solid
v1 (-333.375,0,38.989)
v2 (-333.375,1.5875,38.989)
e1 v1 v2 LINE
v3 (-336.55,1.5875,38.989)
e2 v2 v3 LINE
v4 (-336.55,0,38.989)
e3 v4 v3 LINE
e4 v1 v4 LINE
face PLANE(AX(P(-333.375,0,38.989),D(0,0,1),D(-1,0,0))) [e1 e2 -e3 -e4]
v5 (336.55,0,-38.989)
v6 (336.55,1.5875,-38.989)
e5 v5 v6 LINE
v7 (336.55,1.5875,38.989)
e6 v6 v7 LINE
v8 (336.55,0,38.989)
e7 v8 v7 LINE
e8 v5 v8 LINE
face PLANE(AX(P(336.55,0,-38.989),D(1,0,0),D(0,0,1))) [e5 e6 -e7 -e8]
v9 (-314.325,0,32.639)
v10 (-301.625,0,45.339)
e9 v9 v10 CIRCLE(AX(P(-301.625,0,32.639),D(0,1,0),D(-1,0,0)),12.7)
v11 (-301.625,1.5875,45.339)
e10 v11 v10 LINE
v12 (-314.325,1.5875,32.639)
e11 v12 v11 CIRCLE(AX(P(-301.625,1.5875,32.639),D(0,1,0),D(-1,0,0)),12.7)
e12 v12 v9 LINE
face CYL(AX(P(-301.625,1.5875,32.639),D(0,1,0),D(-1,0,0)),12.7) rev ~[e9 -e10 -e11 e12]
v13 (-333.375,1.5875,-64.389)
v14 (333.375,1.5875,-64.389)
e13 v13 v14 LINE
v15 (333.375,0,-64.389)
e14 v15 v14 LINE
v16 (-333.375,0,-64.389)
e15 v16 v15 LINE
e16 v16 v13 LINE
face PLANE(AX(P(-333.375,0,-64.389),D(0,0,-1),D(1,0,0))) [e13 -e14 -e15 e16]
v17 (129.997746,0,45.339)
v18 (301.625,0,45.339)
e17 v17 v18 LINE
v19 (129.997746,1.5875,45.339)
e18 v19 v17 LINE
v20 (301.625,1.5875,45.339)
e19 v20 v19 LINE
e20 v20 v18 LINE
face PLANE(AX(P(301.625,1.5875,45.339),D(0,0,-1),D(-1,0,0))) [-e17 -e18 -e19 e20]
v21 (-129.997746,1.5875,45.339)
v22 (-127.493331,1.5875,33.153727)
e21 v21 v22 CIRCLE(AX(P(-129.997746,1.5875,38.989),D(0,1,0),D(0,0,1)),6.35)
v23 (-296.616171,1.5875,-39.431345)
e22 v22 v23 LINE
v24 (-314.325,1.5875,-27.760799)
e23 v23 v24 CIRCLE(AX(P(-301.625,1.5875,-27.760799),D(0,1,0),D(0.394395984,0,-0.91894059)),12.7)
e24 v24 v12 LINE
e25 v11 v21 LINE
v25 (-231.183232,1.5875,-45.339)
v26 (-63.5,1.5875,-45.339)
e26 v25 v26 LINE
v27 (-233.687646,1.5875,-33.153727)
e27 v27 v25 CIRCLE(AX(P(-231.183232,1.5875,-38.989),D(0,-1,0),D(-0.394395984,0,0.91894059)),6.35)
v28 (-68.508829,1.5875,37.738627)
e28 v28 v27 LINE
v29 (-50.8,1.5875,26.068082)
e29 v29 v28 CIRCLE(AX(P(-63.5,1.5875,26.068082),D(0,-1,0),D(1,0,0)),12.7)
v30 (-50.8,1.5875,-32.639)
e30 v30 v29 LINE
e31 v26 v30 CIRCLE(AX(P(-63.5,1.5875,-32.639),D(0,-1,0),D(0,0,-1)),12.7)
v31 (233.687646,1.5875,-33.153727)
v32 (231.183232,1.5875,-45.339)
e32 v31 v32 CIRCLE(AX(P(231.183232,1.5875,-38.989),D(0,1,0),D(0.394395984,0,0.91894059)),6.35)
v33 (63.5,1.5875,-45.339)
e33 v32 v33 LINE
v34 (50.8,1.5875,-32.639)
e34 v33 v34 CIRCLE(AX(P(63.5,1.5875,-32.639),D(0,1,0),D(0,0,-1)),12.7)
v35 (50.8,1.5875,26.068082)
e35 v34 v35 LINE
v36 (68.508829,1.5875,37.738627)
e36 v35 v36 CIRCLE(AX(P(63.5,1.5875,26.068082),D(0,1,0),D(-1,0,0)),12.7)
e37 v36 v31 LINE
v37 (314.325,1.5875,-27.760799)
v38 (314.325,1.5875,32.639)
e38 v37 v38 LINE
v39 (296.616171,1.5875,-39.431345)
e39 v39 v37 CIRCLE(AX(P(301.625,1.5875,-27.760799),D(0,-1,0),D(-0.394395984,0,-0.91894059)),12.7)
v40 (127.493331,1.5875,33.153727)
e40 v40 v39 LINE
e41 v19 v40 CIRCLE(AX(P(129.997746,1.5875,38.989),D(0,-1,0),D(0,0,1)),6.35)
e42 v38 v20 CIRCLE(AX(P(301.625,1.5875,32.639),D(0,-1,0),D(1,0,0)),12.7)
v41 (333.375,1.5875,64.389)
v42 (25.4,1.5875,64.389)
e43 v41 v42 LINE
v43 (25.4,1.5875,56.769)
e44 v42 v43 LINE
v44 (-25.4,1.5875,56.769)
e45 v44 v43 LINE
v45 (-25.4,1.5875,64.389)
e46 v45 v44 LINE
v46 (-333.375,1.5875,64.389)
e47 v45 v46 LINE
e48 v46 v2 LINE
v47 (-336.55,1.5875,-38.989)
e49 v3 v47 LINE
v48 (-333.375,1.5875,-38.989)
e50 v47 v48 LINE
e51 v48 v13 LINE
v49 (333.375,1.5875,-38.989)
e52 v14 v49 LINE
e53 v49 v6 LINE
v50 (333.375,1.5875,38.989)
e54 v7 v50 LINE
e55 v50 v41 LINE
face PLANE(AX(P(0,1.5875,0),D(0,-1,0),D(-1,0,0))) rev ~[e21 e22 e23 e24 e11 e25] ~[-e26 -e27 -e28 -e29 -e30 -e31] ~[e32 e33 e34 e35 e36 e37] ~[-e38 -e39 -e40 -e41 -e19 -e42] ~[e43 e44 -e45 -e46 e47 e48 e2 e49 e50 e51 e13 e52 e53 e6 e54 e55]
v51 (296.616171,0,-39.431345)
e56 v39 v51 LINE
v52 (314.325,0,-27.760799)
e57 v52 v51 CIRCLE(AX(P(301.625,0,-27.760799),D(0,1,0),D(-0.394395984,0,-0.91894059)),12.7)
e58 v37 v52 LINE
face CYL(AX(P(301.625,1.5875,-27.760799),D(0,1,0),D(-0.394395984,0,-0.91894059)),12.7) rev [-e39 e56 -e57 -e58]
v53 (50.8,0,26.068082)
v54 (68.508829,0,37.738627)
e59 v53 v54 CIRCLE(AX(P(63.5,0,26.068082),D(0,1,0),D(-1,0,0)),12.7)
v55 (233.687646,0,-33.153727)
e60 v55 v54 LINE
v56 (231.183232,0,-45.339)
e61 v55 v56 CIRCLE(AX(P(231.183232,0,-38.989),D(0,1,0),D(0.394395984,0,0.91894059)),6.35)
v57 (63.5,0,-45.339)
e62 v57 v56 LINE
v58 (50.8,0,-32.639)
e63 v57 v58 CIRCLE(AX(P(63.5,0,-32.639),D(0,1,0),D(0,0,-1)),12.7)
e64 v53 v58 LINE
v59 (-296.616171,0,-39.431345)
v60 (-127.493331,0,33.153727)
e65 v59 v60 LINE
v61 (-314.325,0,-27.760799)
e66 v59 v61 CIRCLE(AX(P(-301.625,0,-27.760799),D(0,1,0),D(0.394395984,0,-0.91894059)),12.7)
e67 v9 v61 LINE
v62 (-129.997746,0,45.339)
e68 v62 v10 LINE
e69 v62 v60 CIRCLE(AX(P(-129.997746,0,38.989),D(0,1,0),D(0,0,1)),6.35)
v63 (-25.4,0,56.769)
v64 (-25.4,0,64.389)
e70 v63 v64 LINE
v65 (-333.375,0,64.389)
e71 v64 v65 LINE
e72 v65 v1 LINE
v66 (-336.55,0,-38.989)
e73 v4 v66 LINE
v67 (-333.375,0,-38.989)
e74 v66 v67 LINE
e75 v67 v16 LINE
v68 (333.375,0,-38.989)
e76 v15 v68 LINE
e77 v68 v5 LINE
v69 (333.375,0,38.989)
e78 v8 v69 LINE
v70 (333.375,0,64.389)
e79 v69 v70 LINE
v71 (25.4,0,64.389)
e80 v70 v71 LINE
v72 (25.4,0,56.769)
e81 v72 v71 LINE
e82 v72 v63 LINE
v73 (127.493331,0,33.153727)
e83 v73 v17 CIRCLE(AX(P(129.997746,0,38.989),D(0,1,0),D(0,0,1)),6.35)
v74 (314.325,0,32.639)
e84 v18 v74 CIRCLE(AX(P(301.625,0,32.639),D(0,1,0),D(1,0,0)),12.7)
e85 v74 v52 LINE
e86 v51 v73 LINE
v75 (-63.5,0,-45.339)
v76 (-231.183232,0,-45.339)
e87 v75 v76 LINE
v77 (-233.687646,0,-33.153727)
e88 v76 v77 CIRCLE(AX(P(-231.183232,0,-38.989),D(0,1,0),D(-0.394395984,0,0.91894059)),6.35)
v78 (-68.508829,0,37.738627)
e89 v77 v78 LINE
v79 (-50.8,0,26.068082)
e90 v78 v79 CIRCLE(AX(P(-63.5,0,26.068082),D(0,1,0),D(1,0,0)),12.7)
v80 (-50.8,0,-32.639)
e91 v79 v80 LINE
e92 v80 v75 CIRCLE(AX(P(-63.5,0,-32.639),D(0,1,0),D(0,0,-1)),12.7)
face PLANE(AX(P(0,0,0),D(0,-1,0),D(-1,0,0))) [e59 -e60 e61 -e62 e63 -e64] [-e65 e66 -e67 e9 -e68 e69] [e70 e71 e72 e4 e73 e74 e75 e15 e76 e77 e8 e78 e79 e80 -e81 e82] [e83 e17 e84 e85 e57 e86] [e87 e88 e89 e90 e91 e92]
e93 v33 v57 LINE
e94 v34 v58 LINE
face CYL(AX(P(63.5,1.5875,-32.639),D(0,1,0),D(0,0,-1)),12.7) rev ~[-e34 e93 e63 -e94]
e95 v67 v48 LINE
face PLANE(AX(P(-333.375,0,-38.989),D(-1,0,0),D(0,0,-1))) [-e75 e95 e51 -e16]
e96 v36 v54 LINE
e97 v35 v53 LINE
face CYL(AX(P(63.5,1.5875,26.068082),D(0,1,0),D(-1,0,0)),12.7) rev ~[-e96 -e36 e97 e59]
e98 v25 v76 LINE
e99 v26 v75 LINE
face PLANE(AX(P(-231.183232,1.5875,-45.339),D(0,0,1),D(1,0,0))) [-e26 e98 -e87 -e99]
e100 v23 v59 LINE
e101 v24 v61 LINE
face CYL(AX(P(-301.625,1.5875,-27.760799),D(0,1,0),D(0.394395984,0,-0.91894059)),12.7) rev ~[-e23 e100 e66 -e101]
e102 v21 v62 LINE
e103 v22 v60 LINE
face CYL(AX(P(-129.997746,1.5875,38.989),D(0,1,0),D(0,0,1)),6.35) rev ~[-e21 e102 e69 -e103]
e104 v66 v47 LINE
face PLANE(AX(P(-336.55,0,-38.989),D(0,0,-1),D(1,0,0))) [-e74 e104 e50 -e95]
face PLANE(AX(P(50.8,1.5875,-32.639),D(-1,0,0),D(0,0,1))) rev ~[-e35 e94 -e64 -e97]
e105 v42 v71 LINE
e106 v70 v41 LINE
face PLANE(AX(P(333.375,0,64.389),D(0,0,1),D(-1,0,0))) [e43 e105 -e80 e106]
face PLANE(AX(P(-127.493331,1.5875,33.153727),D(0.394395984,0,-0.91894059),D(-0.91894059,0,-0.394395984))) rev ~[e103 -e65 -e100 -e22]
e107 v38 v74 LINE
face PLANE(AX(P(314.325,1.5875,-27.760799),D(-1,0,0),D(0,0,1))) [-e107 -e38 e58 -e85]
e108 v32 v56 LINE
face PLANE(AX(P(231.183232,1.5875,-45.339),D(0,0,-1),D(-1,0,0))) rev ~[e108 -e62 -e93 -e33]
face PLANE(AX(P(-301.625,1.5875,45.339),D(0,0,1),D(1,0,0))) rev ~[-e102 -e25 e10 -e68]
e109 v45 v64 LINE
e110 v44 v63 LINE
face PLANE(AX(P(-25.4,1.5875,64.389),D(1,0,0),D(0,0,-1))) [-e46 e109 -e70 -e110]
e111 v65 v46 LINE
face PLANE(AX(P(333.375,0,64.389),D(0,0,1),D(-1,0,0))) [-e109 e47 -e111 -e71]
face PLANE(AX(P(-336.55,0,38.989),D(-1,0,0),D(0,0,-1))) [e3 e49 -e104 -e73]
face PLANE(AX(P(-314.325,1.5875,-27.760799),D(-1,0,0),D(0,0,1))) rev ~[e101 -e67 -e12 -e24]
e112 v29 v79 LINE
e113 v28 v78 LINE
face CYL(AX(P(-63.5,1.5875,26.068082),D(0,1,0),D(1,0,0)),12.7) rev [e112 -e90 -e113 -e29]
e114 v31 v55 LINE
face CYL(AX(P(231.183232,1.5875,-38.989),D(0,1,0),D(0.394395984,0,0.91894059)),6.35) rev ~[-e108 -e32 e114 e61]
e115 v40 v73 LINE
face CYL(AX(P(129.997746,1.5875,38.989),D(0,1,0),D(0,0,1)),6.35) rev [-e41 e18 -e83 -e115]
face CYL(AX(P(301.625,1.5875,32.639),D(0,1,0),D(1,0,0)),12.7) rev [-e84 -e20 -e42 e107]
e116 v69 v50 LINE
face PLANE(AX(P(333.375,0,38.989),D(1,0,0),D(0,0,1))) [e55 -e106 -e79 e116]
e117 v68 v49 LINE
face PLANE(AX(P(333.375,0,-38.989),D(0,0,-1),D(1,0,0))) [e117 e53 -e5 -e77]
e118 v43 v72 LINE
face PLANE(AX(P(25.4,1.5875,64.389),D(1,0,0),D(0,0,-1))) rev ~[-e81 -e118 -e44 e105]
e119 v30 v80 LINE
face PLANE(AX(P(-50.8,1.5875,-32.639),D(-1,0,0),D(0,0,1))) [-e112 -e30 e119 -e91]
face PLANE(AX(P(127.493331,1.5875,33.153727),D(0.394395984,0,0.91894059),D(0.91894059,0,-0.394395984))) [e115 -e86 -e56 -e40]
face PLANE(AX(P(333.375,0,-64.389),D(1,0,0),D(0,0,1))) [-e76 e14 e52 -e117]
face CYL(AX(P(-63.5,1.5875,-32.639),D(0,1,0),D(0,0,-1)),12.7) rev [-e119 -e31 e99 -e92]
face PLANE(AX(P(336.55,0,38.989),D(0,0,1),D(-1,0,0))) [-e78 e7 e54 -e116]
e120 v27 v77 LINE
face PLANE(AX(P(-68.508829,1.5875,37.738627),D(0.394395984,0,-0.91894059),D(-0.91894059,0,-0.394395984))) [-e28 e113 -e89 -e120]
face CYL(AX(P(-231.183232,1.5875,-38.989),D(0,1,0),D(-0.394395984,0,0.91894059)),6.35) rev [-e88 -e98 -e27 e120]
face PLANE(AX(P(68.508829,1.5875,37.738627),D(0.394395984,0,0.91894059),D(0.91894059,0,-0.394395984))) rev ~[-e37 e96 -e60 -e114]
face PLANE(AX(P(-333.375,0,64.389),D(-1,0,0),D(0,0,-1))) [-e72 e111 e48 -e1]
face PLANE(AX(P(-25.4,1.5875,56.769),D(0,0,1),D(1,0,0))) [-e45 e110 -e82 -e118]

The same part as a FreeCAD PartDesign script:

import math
import FreeCAD as App
import Part
import Sketcher
Q = App.Units.Quantity

doc = App.newDocument("Part")
body = doc.addObject("PartDesign::Body", "Body")

# Sketch on XZ plane
sketch1 = body.newObject("Sketcher::SketchObject", "Sketch")
sketch1.AttachmentSupport = (doc.getObject("XZ_Plane"), [""])
sketch1.MapMode = "FlatFace"
sketch1.addGeometry([
    Part.LineSegment(App.Vector(-333.4, -64.4, 0), App.Vector(-333.4, -39, 0)),  # 0
    Part.LineSegment(App.Vector(-333.4, -39, 0), App.Vector(-336.6, -39, 0)),  # 1
    Part.LineSegment(App.Vector(-336.6, -39, 0), App.Vector(-336.6, 39, 0)),  # 2
    Part.LineSegment(App.Vector(-336.6, 39, 0), App.Vector(-333.4, 39, 0)),  # 3
    Part.LineSegment(App.Vector(-333.4, 39, 0), App.Vector(-333.4, 64.4, 0)),  # 4
    Part.LineSegment(App.Vector(-333.4, 64.4, 0), App.Vector(333.4, 64.4, 0)),  # 5
    Part.LineSegment(App.Vector(333.4, 64.4, 0), App.Vector(333.4, 39, 0)),  # 6
    Part.LineSegment(App.Vector(333.4, 39, 0), App.Vector(336.6, 39, 0)),  # 7
    Part.LineSegment(App.Vector(336.6, 39, 0), App.Vector(336.6, -39, 0)),  # 8
    Part.LineSegment(App.Vector(336.6, -39, 0), App.Vector(333.4, -39, 0)),  # 9
    Part.LineSegment(App.Vector(333.4, -39, 0), App.Vector(333.4, -64.4, 0)),  # 10
    Part.LineSegment(App.Vector(333.4, -64.4, 0), App.Vector(-333.4, -64.4, 0)),  # 11
], False)
sketch1.addConstraint([
    Sketcher.Constraint("Coincident", 0, 2, 1, 1),
    Sketcher.Constraint("Coincident", 1, 2, 2, 1),
    Sketcher.Constraint("Coincident", 2, 2, 3, 1),
    Sketcher.Constraint("Coincident", 3, 2, 4, 1),
    Sketcher.Constraint("Coincident", 4, 2, 5, 1),
    Sketcher.Constraint("Coincident", 5, 2, 6, 1),
    Sketcher.Constraint("Coincident", 6, 2, 7, 1),
    Sketcher.Constraint("Coincident", 7, 2, 8, 1),
    Sketcher.Constraint("Coincident", 8, 2, 9, 1),
    Sketcher.Constraint("Coincident", 9, 2, 10, 1),
    Sketcher.Constraint("Coincident", 10, 2, 11, 1),
    Sketcher.Constraint("Coincident", 11, 2, 0, 1),
    Sketcher.Constraint("Vertical", 0),
    Sketcher.Constraint("Horizontal", 1),
    Sketcher.Constraint("Vertical", 2),
    Sketcher.Constraint("Horizontal", 3),
    Sketcher.Constraint("Vertical", 4),
    Sketcher.Constraint("Horizontal", 5),
    Sketcher.Constraint("Vertical", 6),
    Sketcher.Constraint("Horizontal", 7),
    Sketcher.Constraint("Vertical", 8),
    Sketcher.Constraint("Horizontal", 9),
    Sketcher.Constraint("Vertical", 10),
    Sketcher.Constraint("Horizontal", 11),
    Sketcher.Constraint("Symmetric", 0, 2, 6, 2, -1, 1),
    Sketcher.Constraint("Symmetric", 2, 2, 8, 2, -1, 1),
    Sketcher.Constraint("Symmetric", 4, 2, 10, 2, -1, 1),
    Sketcher.Constraint("Symmetric", 3, 2, 6, 2, -2),
    Sketcher.Constraint("DistanceY", 0, 1, 0, 2, Q("1 in")),
    Sketcher.Constraint("DistanceX", 5, 1, 5, 2, Q("26.25 in")),
    Sketcher.Constraint("DistanceY", 2, 1, 2, 2, Q("3.07 in")),
    Sketcher.Constraint("DistanceX", 2, 2, 7, 2, Q("26.5 in")),
])
pad1 = body.newObject("PartDesign::Pad", "Pad")
pad1.Profile = sketch1
pad1.Length = Q("0.0625 in")
pad1.Reversed = True

# Sketch on XZ plane
sketch2 = body.newObject("Sketcher::SketchObject", "Sketch001")
sketch2.AttachmentSupport = (doc.getObject("XZ_Plane"), [""])
sketch2.MapMode = "FlatFace"
sketch2.AttachmentOffset = App.Placement(App.Vector(0, 0, -0.0625 * 25.4), App.Rotation())
sketch2.addGeometry([
    Part.LineSegment(App.Vector(-314.325, -27.760799, 0), App.Vector(-314.325, 32.639, 0)),  # 0
    Part.ArcOfCircle(Part.Circle(App.Vector(-301.625, 32.639, 0), App.Vector(0, 0, 1), 12.7), math.radians(90), math.radians(180)),  # 1
    Part.LineSegment(App.Vector(-301.625, 45.339, 0), App.Vector(-129.997746, 45.339, 0)),  # 2
    Part.ArcOfCircle(Part.Circle(App.Vector(-129.997746, 38.989, 0), App.Vector(0, 0, 1), 6.35), math.radians(-66.771692), math.radians(90)),  # 3
    Part.LineSegment(App.Vector(-127.493331, 33.153727, 0), App.Vector(-296.616171, -39.431345, 0)),  # 4
    Part.ArcOfCircle(Part.Circle(App.Vector(-301.625, -27.760799, 0), App.Vector(0, 0, 1), 12.7), math.radians(180), math.radians(293.228308)),  # 5
    Part.LineSegment(App.Vector(-63.5, -45.339, 0), App.Vector(-231.183232, -45.339, 0)),  # 6
    Part.ArcOfCircle(Part.Circle(App.Vector(-231.183232, -38.989, 0), App.Vector(0, 0, 1), 6.35), math.radians(113.228308), math.radians(270)),  # 7
    Part.LineSegment(App.Vector(-233.687646, -33.153727, 0), App.Vector(-68.508829, 37.738627, 0)),  # 8
    Part.ArcOfCircle(Part.Circle(App.Vector(-63.5, 26.068082, 0), App.Vector(0, 0, 1), 12.7), math.radians(0), math.radians(113.228308)),  # 9
    Part.LineSegment(App.Vector(-50.8, 26.068082, 0), App.Vector(-50.8, -32.639, 0)),  # 10
    Part.ArcOfCircle(Part.Circle(App.Vector(-63.5, -32.639, 0), App.Vector(0, 0, 1), 12.7), math.radians(-90), math.radians(0)),  # 11
    Part.LineSegment(App.Vector(68.508829, 37.738627, 0), App.Vector(233.687646, -33.153727, 0)),  # 12
    Part.ArcOfCircle(Part.Circle(App.Vector(231.183232, -38.989, 0), App.Vector(0, 0, 1), 6.35), math.radians(-90), math.radians(66.771692)),  # 13
    Part.LineSegment(App.Vector(231.183232, -45.339, 0), App.Vector(63.5, -45.339, 0)),  # 14
    Part.ArcOfCircle(Part.Circle(App.Vector(63.5, -32.639, 0), App.Vector(0, 0, 1), 12.7), math.radians(180), math.radians(270)),  # 15
    Part.LineSegment(App.Vector(50.8, -32.639, 0), App.Vector(50.8, 26.068082, 0)),  # 16
    Part.ArcOfCircle(Part.Circle(App.Vector(63.5, 26.068082, 0), App.Vector(0, 0, 1), 12.7), math.radians(66.771692), math.radians(180)),  # 17
    Part.LineSegment(App.Vector(314.325, 32.639, 0), App.Vector(314.325, -27.760799, 0)),  # 18
    Part.ArcOfCircle(Part.Circle(App.Vector(301.625, -27.760799, 0), App.Vector(0, 0, 1), 12.7), math.radians(-113.228308), math.radians(0)),  # 19
    Part.LineSegment(App.Vector(296.616171, -39.431345, 0), App.Vector(127.493331, 33.153727, 0)),  # 20
    Part.ArcOfCircle(Part.Circle(App.Vector(129.997746, 38.989, 0), App.Vector(0, 0, 1), 6.35), math.radians(90), math.radians(246.771692)),  # 21
    Part.LineSegment(App.Vector(129.997746, 45.339, 0), App.Vector(301.625, 45.339, 0)),  # 22
    Part.ArcOfCircle(Part.Circle(App.Vector(301.625, 32.639, 0), App.Vector(0, 0, 1), 12.7), math.radians(0), math.radians(90)),  # 23
], False)
sketch2.addConstraint([
    Sketcher.Constraint("Coincident", 0, 2, 1, 2),
    Sketcher.Constraint("Coincident", 1, 1, 2, 1),
    Sketcher.Constraint("Coincident", 2, 2, 3, 2),
    Sketcher.Constraint("Coincident", 3, 1, 4, 1),
    Sketcher.Constraint("Coincident", 4, 2, 5, 2),
    Sketcher.Constraint("Coincident", 5, 1, 0, 1),
    Sketcher.Constraint("Coincident", 6, 2, 7, 2),
    Sketcher.Constraint("Coincident", 7, 1, 8, 1),
    Sketcher.Constraint("Coincident", 8, 2, 9, 2),
    Sketcher.Constraint("Coincident", 9, 1, 10, 1),
    Sketcher.Constraint("Coincident", 10, 2, 11, 2),
    Sketcher.Constraint("Coincident", 11, 1, 6, 1),
    Sketcher.Constraint("Coincident", 12, 2, 13, 2),
    Sketcher.Constraint("Coincident", 13, 1, 14, 1),
    Sketcher.Constraint("Coincident", 14, 2, 15, 2),
    Sketcher.Constraint("Coincident", 15, 1, 16, 1),
    Sketcher.Constraint("Coincident", 16, 2, 17, 2),
    Sketcher.Constraint("Coincident", 17, 1, 12, 1),
    Sketcher.Constraint("Coincident", 18, 2, 19, 2),
    Sketcher.Constraint("Coincident", 19, 1, 20, 1),
    Sketcher.Constraint("Coincident", 20, 2, 21, 2),
    Sketcher.Constraint("Coincident", 21, 1, 22, 1),
    Sketcher.Constraint("Coincident", 22, 2, 23, 2),
    Sketcher.Constraint("Coincident", 23, 1, 18, 1),
    Sketcher.Constraint("Vertical", 0),
    Sketcher.Constraint("Horizontal", 2),
    Sketcher.Constraint("Horizontal", 6),
    Sketcher.Constraint("Vertical", 10),
    Sketcher.Constraint("Horizontal", 14),
    Sketcher.Constraint("Vertical", 16),
    Sketcher.Constraint("Vertical", 18),
    Sketcher.Constraint("Horizontal", 22),
    Sketcher.Constraint("Radius", 1, Q("0.5 in")),
    Sketcher.Constraint("Radius", 5, Q("0.5 in")),
    Sketcher.Constraint("Radius", 9, Q("0.5 in")),
    Sketcher.Constraint("Radius", 11, Q("0.5 in")),
    Sketcher.Constraint("Radius", 15, Q("0.5 in")),
    Sketcher.Constraint("Radius", 17, Q("0.5 in")),
    Sketcher.Constraint("Radius", 19, Q("0.5 in")),
    Sketcher.Constraint("Radius", 23, Q("0.5 in")),
    Sketcher.Constraint("Radius", 3, Q("0.25 in")),
    Sketcher.Constraint("Radius", 7, Q("0.25 in")),
    Sketcher.Constraint("Radius", 13, Q("0.25 in")),
    Sketcher.Constraint("Radius", 21, Q("0.25 in")),
    Sketcher.Constraint("DistanceX", 9, 1, -1, 1, Q("2 in")),
    Sketcher.Constraint("DistanceX", -1, 1, 15, 1, Q("2 in")),
    Sketcher.Constraint("DistanceX", 11, 1, 14, 2, Q("5 in")),
    Sketcher.Constraint("DistanceX", 11, 1, -1, 1, Q("2.5 in")),
    Sketcher.Constraint("DistanceX", 0, 2, 1, 1, Q("0.5 in")),
    Sketcher.Constraint("DistanceY", 0, 2, 1, 1, Q("0.5 in")),
    Sketcher.Constraint("DistanceY", 11, 1, 10, 2, Q("0.5 in")),
    Sketcher.Constraint("DistanceY", 14, 2, 10, 2, Q("0.5 in")),
    Sketcher.Constraint("DistanceY", 14, 2, 15, 1, Q("0.5 in")),
    Sketcher.Constraint("DistanceX", 22, 2, 18, 2, Q("0.5 in")),
    Sketcher.Constraint("DistanceY", 23, 1, 22, 2, Q("0.5 in")),
    Sketcher.Constraint("DistanceY", 7, 3, 1, 3, Q("2.82 in")),
    Sketcher.Constraint("DistanceY", 15, 3, 21, 3, Q("2.82 in")),
    Sketcher.Constraint("DistanceX", 1, 3, -1, 1, Q("11.875 in")),
    Sketcher.Constraint("DistanceY", -1, 1, 1, 3, Q("1.285 in")),
    Sketcher.Constraint("DistanceX", -1, 1, 19, 3, Q("11.875 in")),
    Sketcher.Constraint("DistanceY", 0, 1, 0, 2, 60.399799),
    Sketcher.Constraint("DistanceY", 18, 2, 18, 1, 60.399799),
    Sketcher.Constraint("DistanceX", 4, 2, 7, 3, Q("2.5761 in")),
    Sketcher.Constraint("DistanceX", 4, 2, 6, 2, Q("2.5761 in")),
    Sketcher.Constraint("DistanceX", 13, 3, 19, 1, Q("2.5761 in")),
    Sketcher.Constraint("DistanceX", 13, 1, 19, 1, Q("2.5761 in")),
    Sketcher.Constraint("DistanceX", 6, 2, 6, 1, 167.683232),
    Sketcher.Constraint("DistanceX", 14, 2, 14, 1, 167.683232),
    Sketcher.Constraint("DistanceY", 10, 2, 10, 1, 58.707082),
    Sketcher.Constraint("DistanceY", 16, 1, 16, 2, 58.707082),
    Sketcher.Constraint("DistanceY", 5, 3, -1, 1, 27.760799),
    Sketcher.Constraint("DistanceY", 19, 3, -1, 1, 27.760799),
    Sketcher.Constraint("DistanceX", 7, 3, 3, 1, 103.689901),
    Sketcher.Constraint("DistanceY", 3, 1, 8, 2, 4.5849),
    Sketcher.Constraint("DistanceX", 21, 3, 12, 2, 103.689901),
    Sketcher.Constraint("DistanceY", 20, 2, 17, 1, 4.5849),
    Sketcher.Constraint("Distance", 8, 179.74918),
    Sketcher.Constraint("Distance", 12, 179.74918),
    Sketcher.Constraint("DistanceX", 2, 1, 2, 2, 171.627254),
    Sketcher.Constraint("DistanceX", 22, 1, 22, 2, 171.627254),
    Sketcher.Constraint("DistanceY", -1, 1, 9, 3, 26.068082),
    Sketcher.Constraint("DistanceY", -1, 1, 17, 3, 26.068082),
    Sketcher.Constraint("DistanceX", 8, 2, -1, 1, 68.508829),
    Sketcher.Constraint("DistanceX", -1, 1, 17, 1, 68.508829),
])
pocket1 = body.newObject("PartDesign::Pocket", "Pocket")
pocket1.Profile = sketch2
pocket1.Type = "ThroughAll"
pocket1.Reversed = True

# Sketch on XZ plane
sketch3 = body.newObject("Sketcher::SketchObject", "Sketch002")
sketch3.AttachmentSupport = (doc.getObject("XZ_Plane"), [""])
sketch3.MapMode = "FlatFace"
sketch3.AttachmentOffset = App.Placement(App.Vector(0, 0, -0.0625 * 25.4), App.Rotation())
sketch3.addGeometry([
    Part.LineSegment(App.Vector(-25, 57, 0), App.Vector(-25, 64, 0)),
    Part.LineSegment(App.Vector(-25, 64, 0), App.Vector(25, 64, 0)),
    Part.LineSegment(App.Vector(25, 64, 0), App.Vector(25, 57, 0)),
    Part.LineSegment(App.Vector(25, 57, 0), App.Vector(-25, 57, 0)),
], False)
sketch3.addConstraint([
    Sketcher.Constraint("Coincident", 0, 2, 1, 1),
    Sketcher.Constraint("Coincident", 1, 2, 2, 1),
    Sketcher.Constraint("Coincident", 2, 2, 3, 1),
    Sketcher.Constraint("Coincident", 3, 2, 0, 1),
    Sketcher.Constraint("Vertical", 0),
    Sketcher.Constraint("Horizontal", 1),
    Sketcher.Constraint("Vertical", 2),
    Sketcher.Constraint("Horizontal", 3),
    Sketcher.Constraint("DistanceX", 1, 1, 1, 2, Q("2 in")),
    Sketcher.Constraint("DistanceY", 0, 1, 0, 2, Q("0.3 in")),
    Sketcher.Constraint("DistanceX", 0, 2, -1, 1, Q("1 in")),
    Sketcher.Constraint("DistanceY", -1, 1, 0, 2, Q("2.535 in")),
])
pocket2 = body.newObject("PartDesign::Pocket", "Pocket001")
pocket2.Profile = sketch3
pocket2.Type = "ThroughAll"
pocket2.Reversed = True

doc.recompute()
